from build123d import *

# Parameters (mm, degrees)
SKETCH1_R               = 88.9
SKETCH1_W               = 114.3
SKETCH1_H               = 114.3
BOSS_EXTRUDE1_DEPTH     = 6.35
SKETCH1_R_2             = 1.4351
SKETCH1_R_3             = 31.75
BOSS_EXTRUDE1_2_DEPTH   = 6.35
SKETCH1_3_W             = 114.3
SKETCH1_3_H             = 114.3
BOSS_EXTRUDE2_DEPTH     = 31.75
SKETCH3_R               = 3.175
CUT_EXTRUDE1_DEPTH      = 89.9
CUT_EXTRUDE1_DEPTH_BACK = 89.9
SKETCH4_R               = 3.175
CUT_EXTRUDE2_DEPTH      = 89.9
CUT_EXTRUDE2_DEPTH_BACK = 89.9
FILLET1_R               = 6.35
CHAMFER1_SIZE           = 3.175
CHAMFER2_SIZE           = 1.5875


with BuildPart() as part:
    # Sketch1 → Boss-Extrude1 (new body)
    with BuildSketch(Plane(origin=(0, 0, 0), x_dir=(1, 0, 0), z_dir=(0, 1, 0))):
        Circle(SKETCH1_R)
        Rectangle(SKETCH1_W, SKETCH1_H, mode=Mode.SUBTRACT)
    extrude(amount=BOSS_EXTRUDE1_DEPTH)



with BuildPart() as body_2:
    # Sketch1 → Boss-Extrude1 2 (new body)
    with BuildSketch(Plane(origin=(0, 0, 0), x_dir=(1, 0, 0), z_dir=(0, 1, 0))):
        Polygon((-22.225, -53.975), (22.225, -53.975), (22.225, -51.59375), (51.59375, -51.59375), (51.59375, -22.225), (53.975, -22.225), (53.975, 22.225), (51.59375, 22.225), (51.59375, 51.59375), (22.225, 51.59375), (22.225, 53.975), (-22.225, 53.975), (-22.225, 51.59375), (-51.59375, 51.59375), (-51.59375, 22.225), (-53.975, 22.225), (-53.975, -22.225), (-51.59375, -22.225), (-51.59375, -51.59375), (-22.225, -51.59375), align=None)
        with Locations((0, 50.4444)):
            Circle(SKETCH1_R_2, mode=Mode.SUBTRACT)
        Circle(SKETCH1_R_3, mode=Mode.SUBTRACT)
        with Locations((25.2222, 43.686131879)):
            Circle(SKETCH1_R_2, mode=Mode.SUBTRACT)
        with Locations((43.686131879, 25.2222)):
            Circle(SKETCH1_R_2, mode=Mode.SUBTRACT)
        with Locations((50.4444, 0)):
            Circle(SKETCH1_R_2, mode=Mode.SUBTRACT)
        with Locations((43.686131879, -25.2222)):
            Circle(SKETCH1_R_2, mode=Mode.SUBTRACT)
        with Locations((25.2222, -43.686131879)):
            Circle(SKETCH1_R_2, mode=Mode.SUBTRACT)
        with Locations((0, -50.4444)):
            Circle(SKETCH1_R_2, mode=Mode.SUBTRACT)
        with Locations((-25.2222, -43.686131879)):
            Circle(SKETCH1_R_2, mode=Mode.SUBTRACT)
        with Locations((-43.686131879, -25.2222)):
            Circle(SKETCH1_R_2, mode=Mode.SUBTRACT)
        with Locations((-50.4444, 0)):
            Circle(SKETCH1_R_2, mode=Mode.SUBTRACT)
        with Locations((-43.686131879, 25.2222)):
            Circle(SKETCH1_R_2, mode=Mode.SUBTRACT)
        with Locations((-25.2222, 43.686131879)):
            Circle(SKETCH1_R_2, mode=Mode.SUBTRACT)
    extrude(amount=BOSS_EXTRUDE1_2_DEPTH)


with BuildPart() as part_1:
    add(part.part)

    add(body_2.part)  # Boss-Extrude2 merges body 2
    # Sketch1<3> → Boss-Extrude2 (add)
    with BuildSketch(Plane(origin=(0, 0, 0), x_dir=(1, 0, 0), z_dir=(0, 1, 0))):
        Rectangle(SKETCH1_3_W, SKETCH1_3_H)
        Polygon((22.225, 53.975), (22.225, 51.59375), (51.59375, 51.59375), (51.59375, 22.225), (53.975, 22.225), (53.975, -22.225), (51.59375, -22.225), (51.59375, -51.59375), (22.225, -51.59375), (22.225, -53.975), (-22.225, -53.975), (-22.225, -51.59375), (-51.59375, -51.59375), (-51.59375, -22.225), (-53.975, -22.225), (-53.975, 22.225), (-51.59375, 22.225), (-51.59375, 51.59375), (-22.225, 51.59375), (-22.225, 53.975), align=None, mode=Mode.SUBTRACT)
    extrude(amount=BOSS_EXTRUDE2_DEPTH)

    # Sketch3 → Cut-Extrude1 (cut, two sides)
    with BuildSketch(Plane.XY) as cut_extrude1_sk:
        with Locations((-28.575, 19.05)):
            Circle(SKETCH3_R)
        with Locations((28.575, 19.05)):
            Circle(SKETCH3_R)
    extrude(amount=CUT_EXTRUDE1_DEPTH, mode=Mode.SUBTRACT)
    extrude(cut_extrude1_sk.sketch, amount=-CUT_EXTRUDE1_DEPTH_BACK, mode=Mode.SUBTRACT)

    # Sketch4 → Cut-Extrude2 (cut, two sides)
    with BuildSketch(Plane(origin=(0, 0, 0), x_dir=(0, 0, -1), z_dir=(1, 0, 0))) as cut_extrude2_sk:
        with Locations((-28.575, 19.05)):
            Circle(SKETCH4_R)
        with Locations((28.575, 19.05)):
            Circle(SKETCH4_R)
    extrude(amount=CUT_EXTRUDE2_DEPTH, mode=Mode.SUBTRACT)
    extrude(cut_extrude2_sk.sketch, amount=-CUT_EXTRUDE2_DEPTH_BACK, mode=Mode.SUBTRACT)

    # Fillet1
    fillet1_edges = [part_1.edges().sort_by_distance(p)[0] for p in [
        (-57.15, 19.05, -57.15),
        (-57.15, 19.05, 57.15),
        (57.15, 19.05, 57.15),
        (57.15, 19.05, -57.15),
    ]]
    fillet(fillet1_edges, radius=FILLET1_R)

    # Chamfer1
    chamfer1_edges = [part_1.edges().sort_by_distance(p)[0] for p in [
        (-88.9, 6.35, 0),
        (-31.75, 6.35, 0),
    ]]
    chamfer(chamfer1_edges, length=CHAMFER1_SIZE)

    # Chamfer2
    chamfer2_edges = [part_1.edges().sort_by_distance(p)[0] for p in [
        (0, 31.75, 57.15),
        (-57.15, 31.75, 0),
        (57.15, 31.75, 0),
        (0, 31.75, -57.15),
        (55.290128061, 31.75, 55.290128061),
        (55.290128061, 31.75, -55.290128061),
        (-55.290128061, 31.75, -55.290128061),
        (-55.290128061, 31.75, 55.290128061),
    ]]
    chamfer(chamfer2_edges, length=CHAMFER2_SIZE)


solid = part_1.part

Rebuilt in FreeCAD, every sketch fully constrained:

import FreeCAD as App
import Part
import Sketcher
Q = App.Units.Quantity


def edges_at(feature, points):
    """Names of the edges that pass closest to the given points."""
    edges = feature.Shape.Edges
    near = lambda p: min(range(len(edges)), key=lambda i: edges[i].distToShape(Part.Vertex(*p))[0])
    return sorted({f"Edge{near(p) + 1}" for p in points})

doc = App.newDocument("Part")
body = doc.addObject("PartDesign::Body", "Body")

sketch1 = body.newObject("Sketcher::SketchObject", "Sketch")
sketch1.AttachmentSupport = (doc.getObject("XZ_Plane"), [""])
sketch1.MapMode = "FlatFace"
sketch1.addGeometry([
    Part.Circle(App.Vector(0, 0, 0), App.Vector(0, 0, 1), 89),
    Part.LineSegment(App.Vector(57, 57, 0), App.Vector(-57, 57, 0)),
    Part.LineSegment(App.Vector(-57, 57, 0), App.Vector(-57, -57, 0)),
    Part.LineSegment(App.Vector(-57, -57, 0), App.Vector(57, -57, 0)),
    Part.LineSegment(App.Vector(57, -57, 0), App.Vector(57, 57, 0)),
], False)
sketch1.addConstraint([
    Sketcher.Constraint("Coincident", 1, 2, 2, 1),
    Sketcher.Constraint("Coincident", 2, 2, 3, 1),
    Sketcher.Constraint("Coincident", 3, 2, 4, 1),
    Sketcher.Constraint("Coincident", 4, 2, 1, 1),
    Sketcher.Constraint("Horizontal", 1),
    Sketcher.Constraint("Vertical", 2),
    Sketcher.Constraint("Horizontal", 3),
    Sketcher.Constraint("Vertical", 4),
    Sketcher.Constraint("Coincident", 0, 3, -1, 1),
    Sketcher.Constraint("Symmetric", 1, 2, 3, 2, -1, 1),
    Sketcher.Constraint("Equal", 3, 2),
    Sketcher.Constraint("Diameter", 0, Q("7 in")),
    Sketcher.Constraint("DistanceX", 1, 2, 1, 1, Q("4.5 in")),
])
pad1 = body.newObject("PartDesign::Pad", "Pad")
pad1.Profile = sketch1
pad1.Length = Q("0.25 in")
pad1.Reversed = True
body2 = doc.addObject("PartDesign::Body", "Body001")

sketch2 = body2.newObject("Sketcher::SketchObject", "Sketch001")
sketch2.AttachmentSupport = (doc.getObject("XZ_Plane001"), [""])
sketch2.MapMode = "FlatFace"
sketch2.addGeometry([
    Part.LineSegment(App.Vector(-22.2, 54, 0), App.Vector(22.2, 54, 0)),
    Part.LineSegment(App.Vector(22.2, 54, 0), App.Vector(22.2, 51.6, 0)),
    Part.LineSegment(App.Vector(22.2, 51.6, 0), App.Vector(51.6, 51.6, 0)),
    Part.LineSegment(App.Vector(51.6, 51.6, 0), App.Vector(51.6, 22.2, 0)),
    Part.LineSegment(App.Vector(51.6, 22.2, 0), App.Vector(54, 22.2, 0)),
    Part.LineSegment(App.Vector(54, 22.2, 0), App.Vector(54, -22.2, 0)),
    Part.LineSegment(App.Vector(54, -22.2, 0), App.Vector(51.6, -22.2, 0)),
    Part.LineSegment(App.Vector(51.6, -22.2, 0), App.Vector(51.6, -51.6, 0)),
    Part.LineSegment(App.Vector(51.6, -51.6, 0), App.Vector(22.2, -51.6, 0)),
    Part.LineSegment(App.Vector(22.2, -51.6, 0), App.Vector(22.2, -54, 0)),
    Part.LineSegment(App.Vector(22.2, -54, 0), App.Vector(-22.2, -54, 0)),
    Part.LineSegment(App.Vector(-22.2, -54, 0), App.Vector(-22.2, -51.6, 0)),
    Part.LineSegment(App.Vector(-22.2, -51.6, 0), App.Vector(-51.6, -51.6, 0)),
    Part.LineSegment(App.Vector(-51.6, -51.6, 0), App.Vector(-51.6, -22.2, 0)),
    Part.LineSegment(App.Vector(-51.6, -22.2, 0), App.Vector(-54, -22.2, 0)),
    Part.LineSegment(App.Vector(-54, -22.2, 0), App.Vector(-54, 22.2, 0)),
    Part.LineSegment(App.Vector(-54, 22.2, 0), App.Vector(-51.6, 22.2, 0)),
    Part.LineSegment(App.Vector(-51.6, 22.2, 0), App.Vector(-51.6, 51.6, 0)),
    Part.LineSegment(App.Vector(-51.6, 51.6, 0), App.Vector(-22.2, 51.6, 0)),
    Part.LineSegment(App.Vector(-22.2, 51.6, 0), App.Vector(-22.2, 54, 0)),
    Part.Circle(App.Vector(-25.2, 43.7, 0), App.Vector(0, 0, 1), 1.4),
    Part.Circle(App.Vector(-43.7, 25.2, 0), App.Vector(0, 0, 1), 1.4),
    Part.Circle(App.Vector(0, 50.4, 0), App.Vector(0, 0, 1), 1.4),
    Part.Circle(App.Vector(25.2, 43.7, 0), App.Vector(0, 0, 1), 1.4),
    Part.Circle(App.Vector(43.7, 25.2, 0), App.Vector(0, 0, 1), 1.4),
    Part.Circle(App.Vector(-50.4, 0, 0), App.Vector(0, 0, 1), 1.4),
    Part.Circle(App.Vector(-43.7, -25.2, 0), App.Vector(0, 0, 1), 1.4),
    Part.Circle(App.Vector(-25.2, -43.7, 0), App.Vector(0, 0, 1), 1.4),
    Part.Circle(App.Vector(0, 0, 0), App.Vector(0, 0, 1), 31.8),
    Part.Circle(App.Vector(50.4, 0, 0), App.Vector(0, 0, 1), 1.4),
    Part.Circle(App.Vector(43.7, -25.2, 0), App.Vector(0, 0, 1), 1.4),
    Part.Circle(App.Vector(0, -50.4, 0), App.Vector(0, 0, 1), 1.4),
    Part.Circle(App.Vector(25.2, -43.7, 0), App.Vector(0, 0, 1), 1.4),
], False)
sketch2.addConstraint([
    Sketcher.Constraint("Coincident", 0, 2, 1, 1),
    Sketcher.Constraint("Coincident", 1, 2, 2, 1),
    Sketcher.Constraint("Coincident", 2, 2, 3, 1),
    Sketcher.Constraint("Coincident", 3, 2, 4, 1),
    Sketcher.Constraint("Coincident", 4, 2, 5, 1),
    Sketcher.Constraint("Coincident", 5, 2, 6, 1),
    Sketcher.Constraint("Coincident", 6, 2, 7, 1),
    Sketcher.Constraint("Coincident", 7, 2, 8, 1),
    Sketcher.Constraint("Coincident", 8, 2, 9, 1),
    Sketcher.Constraint("Coincident", 9, 2, 10, 1),
    Sketcher.Constraint("Coincident", 10, 2, 11, 1),
    Sketcher.Constraint("Coincident", 11, 2, 12, 1),
    Sketcher.Constraint("Coincident", 12, 2, 13, 1),
    Sketcher.Constraint("Coincident", 13, 2, 14, 1),
    Sketcher.Constraint("Coincident", 14, 2, 15, 1),
    Sketcher.Constraint("Coincident", 15, 2, 16, 1),
    Sketcher.Constraint("Coincident", 16, 2, 17, 1),
    Sketcher.Constraint("Coincident", 17, 2, 18, 1),
    Sketcher.Constraint("Coincident", 18, 2, 19, 1),
    Sketcher.Constraint("Coincident", 19, 2, 0, 1),
    Sketcher.Constraint("Horizontal", 0),
    Sketcher.Constraint("Vertical", 1),
    Sketcher.Constraint("Horizontal", 2),
    Sketcher.Constraint("Vertical", 3),
    Sketcher.Constraint("Horizontal", 4),
    Sketcher.Constraint("Vertical", 5),
    Sketcher.Constraint("Horizontal", 6),
    Sketcher.Constraint("Vertical", 7),
    Sketcher.Constraint("Horizontal", 8),
    Sketcher.Constraint("Vertical", 9),
    Sketcher.Constraint("Horizontal", 10),
    Sketcher.Constraint("Vertical", 11),
    Sketcher.Constraint("Horizontal", 12),
    Sketcher.Constraint("Vertical", 13),
    Sketcher.Constraint("Horizontal", 14),
    Sketcher.Constraint("Vertical", 15),
    Sketcher.Constraint("Horizontal", 16),
    Sketcher.Constraint("Vertical", 17),
    Sketcher.Constraint("Horizontal", 18),
    Sketcher.Constraint("Vertical", 19),
    Sketcher.Constraint("Coincident", 28, 3, -1, 1),
    Sketcher.Constraint("Equal", 20, 21),
    Sketcher.Constraint("Equal", 21, 22),
    Sketcher.Constraint("Equal", 22, 23),
    Sketcher.Constraint("Equal", 23, 24),
    Sketcher.Constraint("Equal", 24, 25),
    Sketcher.Constraint("Equal", 25, 26),
    Sketcher.Constraint("Equal", 26, 27),
    Sketcher.Constraint("Equal", 27, 29),
    Sketcher.Constraint("Equal", 29, 30),
    Sketcher.Constraint("Equal", 30, 31),
    Sketcher.Constraint("Equal", 31, 32),
    Sketcher.Constraint("Symmetric", 24, 3, 26, 3, -1, 1),
    Sketcher.Constraint("Symmetric", 23, 3, 27, 3, -1, 1),
    Sketcher.Constraint("Symmetric", 25, 3, 29, 3, -1, 1),
    Sketcher.Constraint("Symmetric", 21, 3, 30, 3, -1, 1),
    Sketcher.Constraint("Symmetric", 22, 3, 31, 3, -1, 1),
    Sketcher.Constraint("Symmetric", 20, 3, 32, 3, -1, 1),
    Sketcher.Constraint("Symmetric", 0, 2, 10, 2, -1, 1),
    Sketcher.Constraint("Symmetric", 2, 2, 12, 2, -1, 1),
    Sketcher.Constraint("Symmetric", 4, 2, 14, 2, -1, 1),
    Sketcher.Constraint("Symmetric", 6, 2, 16, 2, -1, 1),
    Sketcher.Constraint("Symmetric", 8, 2, 18, 2, -1, 1),
    Sketcher.Constraint("Symmetric", 20, 3, 23, 3, -2),
    Sketcher.Constraint("Symmetric", 21, 3, 24, 3, -2),
    Sketcher.Constraint("Symmetric", 8, 2, 11, 2, -2),
    Sketcher.Constraint("Symmetric", 6, 2, 13, 2, -2),
    Sketcher.Constraint("PointOnObject", 22, 3, -2),
    Sketcher.Constraint("PointOnObject", 25, 3, -1),
    Sketcher.Constraint("Equal", 16, 1),
    Sketcher.Constraint("Equal", 18, 3),
    Sketcher.Constraint("Equal", 10, 5),
    Sketcher.Constraint("Diameter", 28, Q("2.5 in")),
    Sketcher.Constraint("Diameter", 20, Q("0.113 in")),
    Sketcher.Constraint("DistanceX", 0, 1, 0, 2, Q("1.75 in")),
    Sketcher.Constraint("DistanceX", 2, 1, 2, 2, Q("1.15625 in")),
    Sketcher.Constraint("DistanceX", 4, 1, 4, 2, Q("0.09375 in")),
    Sketcher.Constraint("DistanceX", 20, 3, -1, 1, Q("0.993 in")),
    Sketcher.Constraint("DistanceY", -1, 1, 21, 3, Q("0.993 in")),
    Sketcher.Constraint("DistanceY", -1, 1, 22, 3, Q("1.986 in")),
    Sketcher.Constraint("DistanceX", 25, 3, -1, 1, Q("1.986 in")),
    Sketcher.Constraint("DistanceY", -1, 1, 20, 3, Q("43.686132 mm")),
    Sketcher.Constraint("DistanceX", 21, 3, -1, 1, Q("43.686132 mm")),
])
pad2 = body2.newObject("PartDesign::Pad", "Pad001")
pad2.Profile = sketch2
pad2.Length = Q("0.25 in")
pad2.Reversed = True
body.AllowCompound = True
doc.recompute()

boolean = body.newObject("PartDesign::Boolean", "Boolean")
boolean.Type = "Fuse"
boolean.addObjects([body2])

sketch3 = body.newObject("Sketcher::SketchObject", "Sketch002")
sketch3.AttachmentSupport = (doc.getObject("XZ_Plane"), [""])
sketch3.MapMode = "FlatFace"
sketch3.addGeometry([
    Part.LineSegment(App.Vector(-57.1, -57.1, 0), App.Vector(-57.1, 57.1, 0)),
    Part.LineSegment(App.Vector(-57.1, 57.1, 0), App.Vector(57.1, 57.1, 0)),
    Part.LineSegment(App.Vector(57.1, 57.1, 0), App.Vector(57.1, -57.1, 0)),
    Part.LineSegment(App.Vector(57.1, -57.1, 0), App.Vector(-57.1, -57.1, 0)),
    Part.LineSegment(App.Vector(-22.2, -54, 0), App.Vector(22.2, -54, 0)),
    Part.LineSegment(App.Vector(22.2, -54, 0), App.Vector(22.2, -51.6, 0)),
    Part.LineSegment(App.Vector(22.2, -51.6, 0), App.Vector(51.6, -51.6, 0)),
    Part.LineSegment(App.Vector(51.6, -51.6, 0), App.Vector(51.6, -22.2, 0)),
    Part.LineSegment(App.Vector(51.6, -22.2, 0), App.Vector(54, -22.2, 0)),
    Part.LineSegment(App.Vector(54, -22.2, 0), App.Vector(54, 22.2, 0)),
    Part.LineSegment(App.Vector(54, 22.2, 0), App.Vector(51.6, 22.2, 0)),
    Part.LineSegment(App.Vector(51.6, 22.2, 0), App.Vector(51.6, 51.6, 0)),
    Part.LineSegment(App.Vector(51.6, 51.6, 0), App.Vector(22.2, 51.6, 0)),
    Part.LineSegment(App.Vector(22.2, 51.6, 0), App.Vector(22.2, 54, 0)),
    Part.LineSegment(App.Vector(22.2, 54, 0), App.Vector(-22.2, 54, 0)),
    Part.LineSegment(App.Vector(-22.2, 54, 0), App.Vector(-22.2, 51.6, 0)),
    Part.LineSegment(App.Vector(-22.2, 51.6, 0), App.Vector(-51.6, 51.6, 0)),
    Part.LineSegment(App.Vector(-51.6, 51.6, 0), App.Vector(-51.6, 22.2, 0)),
    Part.LineSegment(App.Vector(-51.6, 22.2, 0), App.Vector(-54, 22.2, 0)),
    Part.LineSegment(App.Vector(-54, 22.2, 0), App.Vector(-54, -22.2, 0)),
    Part.LineSegment(App.Vector(-54, -22.2, 0), App.Vector(-51.6, -22.2, 0)),
    Part.LineSegment(App.Vector(-51.6, -22.2, 0), App.Vector(-51.6, -51.6, 0)),
    Part.LineSegment(App.Vector(-51.6, -51.6, 0), App.Vector(-22.2, -51.6, 0)),
    Part.LineSegment(App.Vector(-22.2, -51.6, 0), App.Vector(-22.2, -54, 0)),
], False)
sketch3.addConstraint([
    Sketcher.Constraint("Coincident", 0, 2, 1, 1),
    Sketcher.Constraint("Coincident", 1, 2, 2, 1),
    Sketcher.Constraint("Coincident", 2, 2, 3, 1),
    Sketcher.Constraint("Coincident", 3, 2, 0, 1),
    Sketcher.Constraint("Coincident", 4, 2, 5, 1),
    Sketcher.Constraint("Coincident", 5, 2, 6, 1),
    Sketcher.Constraint("Coincident", 6, 2, 7, 1),
    Sketcher.Constraint("Coincident", 7, 2, 8, 1),
    Sketcher.Constraint("Coincident", 8, 2, 9, 1),
    Sketcher.Constraint("Coincident", 9, 2, 10, 1),
    Sketcher.Constraint("Coincident", 10, 2, 11, 1),
    Sketcher.Constraint("Coincident", 11, 2, 12, 1),
    Sketcher.Constraint("Coincident", 12, 2, 13, 1),
    Sketcher.Constraint("Coincident", 13, 2, 14, 1),
    Sketcher.Constraint("Coincident", 14, 2, 15, 1),
    Sketcher.Constraint("Coincident", 15, 2, 16, 1),
    Sketcher.Constraint("Coincident", 16, 2, 17, 1),
    Sketcher.Constraint("Coincident", 17, 2, 18, 1),
    Sketcher.Constraint("Coincident", 18, 2, 19, 1),
    Sketcher.Constraint("Coincident", 19, 2, 20, 1),
    Sketcher.Constraint("Coincident", 20, 2, 21, 1),
    Sketcher.Constraint("Coincident", 21, 2, 22, 1),
    Sketcher.Constraint("Coincident", 22, 2, 23, 1),
    Sketcher.Constraint("Coincident", 23, 2, 4, 1),
    Sketcher.Constraint("Vertical", 0),
    Sketcher.Constraint("Horizontal", 1),
    Sketcher.Constraint("Vertical", 2),
    Sketcher.Constraint("Horizontal", 3),
    Sketcher.Constraint("Horizontal", 4),
    Sketcher.Constraint("Vertical", 5),
    Sketcher.Constraint("Horizontal", 6),
    Sketcher.Constraint("Vertical", 7),
    Sketcher.Constraint("Horizontal", 8),
    Sketcher.Constraint("Vertical", 9),
    Sketcher.Constraint("Horizontal", 10),
    Sketcher.Constraint("Vertical", 11),
    Sketcher.Constraint("Horizontal", 12),
    Sketcher.Constraint("Vertical", 13),
    Sketcher.Constraint("Horizontal", 14),
    Sketcher.Constraint("Vertical", 15),
    Sketcher.Constraint("Horizontal", 16),
    Sketcher.Constraint("Vertical", 17),
    Sketcher.Constraint("Horizontal", 18),
    Sketcher.Constraint("Vertical", 19),
    Sketcher.Constraint("Horizontal", 20),
    Sketcher.Constraint("Vertical", 21),
    Sketcher.Constraint("Horizontal", 22),
    Sketcher.Constraint("Vertical", 23),
    Sketcher.Constraint("Symmetric", 0, 2, 2, 2, -1, 1),
    Sketcher.Constraint("Symmetric", 4, 2, 14, 2, -1, 1),
    Sketcher.Constraint("Symmetric", 6, 2, 16, 2, -1, 1),
    Sketcher.Constraint("Symmetric", 8, 2, 18, 2, -1, 1),
    Sketcher.Constraint("Symmetric", 10, 2, 20, 2, -1, 1),
    Sketcher.Constraint("Symmetric", 12, 2, 22, 2, -1, 1),
    Sketcher.Constraint("Symmetric", 12, 2, 15, 2, -2),
    Sketcher.Constraint("Symmetric", 10, 2, 17, 2, -2),
    Sketcher.Constraint("Equal", 3, 0),
    Sketcher.Constraint("Equal", 20, 5),
    Sketcher.Constraint("Equal", 22, 7),
    Sketcher.Constraint("Equal", 14, 9),
    Sketcher.Constraint("DistanceX", 1, 1, 1, 2, Q("4.5 in")),
    Sketcher.Constraint("DistanceX", 4, 1, 4, 2, Q("1.75 in")),
    Sketcher.Constraint("DistanceX", 6, 1, 6, 2, Q("1.15625 in")),
    Sketcher.Constraint("DistanceX", 8, 1, 8, 2, Q("0.09375 in")),
])
pad3 = body.newObject("PartDesign::Pad", "Pad002")
pad3.Profile = sketch3
pad3.Length = Q("1.25 in")
pad3.Reversed = True

sketch4 = body.newObject("Sketcher::SketchObject", "Sketch003")
sketch4.AttachmentSupport = (doc.getObject("XY_Plane"), [""])
sketch4.MapMode = "FlatFace"
sketch4.addGeometry([
    Part.Circle(App.Vector(-28.6, 19.1, 0), App.Vector(0, 0, 1), 3.2),
    Part.Circle(App.Vector(28.6, 19.1, 0), App.Vector(0, 0, 1), 3.2),
], False)
sketch4.addConstraint([
    Sketcher.Constraint("Equal", 0, 1),
    Sketcher.Constraint("Symmetric", 0, 3, 1, 3, -2),
    Sketcher.Constraint("Diameter", 0, Q("0.25 in")),
    Sketcher.Constraint("DistanceY", -1, 1, 0, 3, Q("0.75 in")),
    Sketcher.Constraint("DistanceX", 0, 3, 1, 3, Q("2.25 in")),
])
pocket1 = body.newObject("PartDesign::Pocket", "Pocket")
pocket1.Profile = sketch4
pocket1.Type = "ThroughAll"
pocket1.Midplane = True

sketch5 = body.newObject("Sketcher::SketchObject", "Sketch004")
sketch5.AttachmentSupport = (doc.getObject("YZ_Plane"), [""])
sketch5.MapMode = "FlatFace"
sketch5.addGeometry([
    Part.Circle(App.Vector(19.1, 28.6, 0), App.Vector(0, 0, 1), 3.2),
    Part.Circle(App.Vector(19.1, -28.6, 0), App.Vector(0, 0, 1), 3.2),
], False)
sketch5.addConstraint([
    Sketcher.Constraint("Equal", 0, 1),
    Sketcher.Constraint("Symmetric", 0, 3, 1, 3, -1),
    Sketcher.Constraint("Diameter", 0, Q("0.25 in")),
    Sketcher.Constraint("DistanceX", -1, 1, 0, 3, Q("0.75 in")),
    Sketcher.Constraint("DistanceY", 1, 3, 0, 3, Q("2.25 in")),
])
pocket2 = body.newObject("PartDesign::Pocket", "Pocket001")
pocket2.Profile = sketch5
pocket2.Type = "ThroughAll"
pocket2.Midplane = True
doc.recompute()

fillet = body.newObject("PartDesign::Fillet", "Fillet")
fillet.Base = (pocket2, edges_at(pocket2, [
    (-57.15, 19.05, -57.15),
    (-57.15, 19.05, 57.15),
    (57.15, 19.05, 57.15),
    (57.15, 19.05, -57.15),
]))
fillet.Radius = Q("0.25 in")
doc.recompute()

chamfer = body.newObject("PartDesign::Chamfer", "Chamfer")
chamfer.Base = (fillet, edges_at(fillet, [(-88.9, 6.35, 0), (-31.75, 6.35, 0)]))
chamfer.Size = Q("0.125 in")
doc.recompute()

chamfer2 = body.newObject("PartDesign::Chamfer", "Chamfer001")
chamfer2.Base = (chamfer, edges_at(chamfer, [
    (0, 31.75, 57.15),
    (-57.15, 31.75, 0),
    (57.15, 31.75, 0),
    (0, 31.75, -57.15),
    (55.29, 31.75, 55.29),
    (55.29, 31.75, -55.29),
    (-55.29, 31.75, -55.29),
    (-55.29, 31.75, 55.29),
]))
chamfer2.Size = Q("0.0625 in")

doc.recompute()
